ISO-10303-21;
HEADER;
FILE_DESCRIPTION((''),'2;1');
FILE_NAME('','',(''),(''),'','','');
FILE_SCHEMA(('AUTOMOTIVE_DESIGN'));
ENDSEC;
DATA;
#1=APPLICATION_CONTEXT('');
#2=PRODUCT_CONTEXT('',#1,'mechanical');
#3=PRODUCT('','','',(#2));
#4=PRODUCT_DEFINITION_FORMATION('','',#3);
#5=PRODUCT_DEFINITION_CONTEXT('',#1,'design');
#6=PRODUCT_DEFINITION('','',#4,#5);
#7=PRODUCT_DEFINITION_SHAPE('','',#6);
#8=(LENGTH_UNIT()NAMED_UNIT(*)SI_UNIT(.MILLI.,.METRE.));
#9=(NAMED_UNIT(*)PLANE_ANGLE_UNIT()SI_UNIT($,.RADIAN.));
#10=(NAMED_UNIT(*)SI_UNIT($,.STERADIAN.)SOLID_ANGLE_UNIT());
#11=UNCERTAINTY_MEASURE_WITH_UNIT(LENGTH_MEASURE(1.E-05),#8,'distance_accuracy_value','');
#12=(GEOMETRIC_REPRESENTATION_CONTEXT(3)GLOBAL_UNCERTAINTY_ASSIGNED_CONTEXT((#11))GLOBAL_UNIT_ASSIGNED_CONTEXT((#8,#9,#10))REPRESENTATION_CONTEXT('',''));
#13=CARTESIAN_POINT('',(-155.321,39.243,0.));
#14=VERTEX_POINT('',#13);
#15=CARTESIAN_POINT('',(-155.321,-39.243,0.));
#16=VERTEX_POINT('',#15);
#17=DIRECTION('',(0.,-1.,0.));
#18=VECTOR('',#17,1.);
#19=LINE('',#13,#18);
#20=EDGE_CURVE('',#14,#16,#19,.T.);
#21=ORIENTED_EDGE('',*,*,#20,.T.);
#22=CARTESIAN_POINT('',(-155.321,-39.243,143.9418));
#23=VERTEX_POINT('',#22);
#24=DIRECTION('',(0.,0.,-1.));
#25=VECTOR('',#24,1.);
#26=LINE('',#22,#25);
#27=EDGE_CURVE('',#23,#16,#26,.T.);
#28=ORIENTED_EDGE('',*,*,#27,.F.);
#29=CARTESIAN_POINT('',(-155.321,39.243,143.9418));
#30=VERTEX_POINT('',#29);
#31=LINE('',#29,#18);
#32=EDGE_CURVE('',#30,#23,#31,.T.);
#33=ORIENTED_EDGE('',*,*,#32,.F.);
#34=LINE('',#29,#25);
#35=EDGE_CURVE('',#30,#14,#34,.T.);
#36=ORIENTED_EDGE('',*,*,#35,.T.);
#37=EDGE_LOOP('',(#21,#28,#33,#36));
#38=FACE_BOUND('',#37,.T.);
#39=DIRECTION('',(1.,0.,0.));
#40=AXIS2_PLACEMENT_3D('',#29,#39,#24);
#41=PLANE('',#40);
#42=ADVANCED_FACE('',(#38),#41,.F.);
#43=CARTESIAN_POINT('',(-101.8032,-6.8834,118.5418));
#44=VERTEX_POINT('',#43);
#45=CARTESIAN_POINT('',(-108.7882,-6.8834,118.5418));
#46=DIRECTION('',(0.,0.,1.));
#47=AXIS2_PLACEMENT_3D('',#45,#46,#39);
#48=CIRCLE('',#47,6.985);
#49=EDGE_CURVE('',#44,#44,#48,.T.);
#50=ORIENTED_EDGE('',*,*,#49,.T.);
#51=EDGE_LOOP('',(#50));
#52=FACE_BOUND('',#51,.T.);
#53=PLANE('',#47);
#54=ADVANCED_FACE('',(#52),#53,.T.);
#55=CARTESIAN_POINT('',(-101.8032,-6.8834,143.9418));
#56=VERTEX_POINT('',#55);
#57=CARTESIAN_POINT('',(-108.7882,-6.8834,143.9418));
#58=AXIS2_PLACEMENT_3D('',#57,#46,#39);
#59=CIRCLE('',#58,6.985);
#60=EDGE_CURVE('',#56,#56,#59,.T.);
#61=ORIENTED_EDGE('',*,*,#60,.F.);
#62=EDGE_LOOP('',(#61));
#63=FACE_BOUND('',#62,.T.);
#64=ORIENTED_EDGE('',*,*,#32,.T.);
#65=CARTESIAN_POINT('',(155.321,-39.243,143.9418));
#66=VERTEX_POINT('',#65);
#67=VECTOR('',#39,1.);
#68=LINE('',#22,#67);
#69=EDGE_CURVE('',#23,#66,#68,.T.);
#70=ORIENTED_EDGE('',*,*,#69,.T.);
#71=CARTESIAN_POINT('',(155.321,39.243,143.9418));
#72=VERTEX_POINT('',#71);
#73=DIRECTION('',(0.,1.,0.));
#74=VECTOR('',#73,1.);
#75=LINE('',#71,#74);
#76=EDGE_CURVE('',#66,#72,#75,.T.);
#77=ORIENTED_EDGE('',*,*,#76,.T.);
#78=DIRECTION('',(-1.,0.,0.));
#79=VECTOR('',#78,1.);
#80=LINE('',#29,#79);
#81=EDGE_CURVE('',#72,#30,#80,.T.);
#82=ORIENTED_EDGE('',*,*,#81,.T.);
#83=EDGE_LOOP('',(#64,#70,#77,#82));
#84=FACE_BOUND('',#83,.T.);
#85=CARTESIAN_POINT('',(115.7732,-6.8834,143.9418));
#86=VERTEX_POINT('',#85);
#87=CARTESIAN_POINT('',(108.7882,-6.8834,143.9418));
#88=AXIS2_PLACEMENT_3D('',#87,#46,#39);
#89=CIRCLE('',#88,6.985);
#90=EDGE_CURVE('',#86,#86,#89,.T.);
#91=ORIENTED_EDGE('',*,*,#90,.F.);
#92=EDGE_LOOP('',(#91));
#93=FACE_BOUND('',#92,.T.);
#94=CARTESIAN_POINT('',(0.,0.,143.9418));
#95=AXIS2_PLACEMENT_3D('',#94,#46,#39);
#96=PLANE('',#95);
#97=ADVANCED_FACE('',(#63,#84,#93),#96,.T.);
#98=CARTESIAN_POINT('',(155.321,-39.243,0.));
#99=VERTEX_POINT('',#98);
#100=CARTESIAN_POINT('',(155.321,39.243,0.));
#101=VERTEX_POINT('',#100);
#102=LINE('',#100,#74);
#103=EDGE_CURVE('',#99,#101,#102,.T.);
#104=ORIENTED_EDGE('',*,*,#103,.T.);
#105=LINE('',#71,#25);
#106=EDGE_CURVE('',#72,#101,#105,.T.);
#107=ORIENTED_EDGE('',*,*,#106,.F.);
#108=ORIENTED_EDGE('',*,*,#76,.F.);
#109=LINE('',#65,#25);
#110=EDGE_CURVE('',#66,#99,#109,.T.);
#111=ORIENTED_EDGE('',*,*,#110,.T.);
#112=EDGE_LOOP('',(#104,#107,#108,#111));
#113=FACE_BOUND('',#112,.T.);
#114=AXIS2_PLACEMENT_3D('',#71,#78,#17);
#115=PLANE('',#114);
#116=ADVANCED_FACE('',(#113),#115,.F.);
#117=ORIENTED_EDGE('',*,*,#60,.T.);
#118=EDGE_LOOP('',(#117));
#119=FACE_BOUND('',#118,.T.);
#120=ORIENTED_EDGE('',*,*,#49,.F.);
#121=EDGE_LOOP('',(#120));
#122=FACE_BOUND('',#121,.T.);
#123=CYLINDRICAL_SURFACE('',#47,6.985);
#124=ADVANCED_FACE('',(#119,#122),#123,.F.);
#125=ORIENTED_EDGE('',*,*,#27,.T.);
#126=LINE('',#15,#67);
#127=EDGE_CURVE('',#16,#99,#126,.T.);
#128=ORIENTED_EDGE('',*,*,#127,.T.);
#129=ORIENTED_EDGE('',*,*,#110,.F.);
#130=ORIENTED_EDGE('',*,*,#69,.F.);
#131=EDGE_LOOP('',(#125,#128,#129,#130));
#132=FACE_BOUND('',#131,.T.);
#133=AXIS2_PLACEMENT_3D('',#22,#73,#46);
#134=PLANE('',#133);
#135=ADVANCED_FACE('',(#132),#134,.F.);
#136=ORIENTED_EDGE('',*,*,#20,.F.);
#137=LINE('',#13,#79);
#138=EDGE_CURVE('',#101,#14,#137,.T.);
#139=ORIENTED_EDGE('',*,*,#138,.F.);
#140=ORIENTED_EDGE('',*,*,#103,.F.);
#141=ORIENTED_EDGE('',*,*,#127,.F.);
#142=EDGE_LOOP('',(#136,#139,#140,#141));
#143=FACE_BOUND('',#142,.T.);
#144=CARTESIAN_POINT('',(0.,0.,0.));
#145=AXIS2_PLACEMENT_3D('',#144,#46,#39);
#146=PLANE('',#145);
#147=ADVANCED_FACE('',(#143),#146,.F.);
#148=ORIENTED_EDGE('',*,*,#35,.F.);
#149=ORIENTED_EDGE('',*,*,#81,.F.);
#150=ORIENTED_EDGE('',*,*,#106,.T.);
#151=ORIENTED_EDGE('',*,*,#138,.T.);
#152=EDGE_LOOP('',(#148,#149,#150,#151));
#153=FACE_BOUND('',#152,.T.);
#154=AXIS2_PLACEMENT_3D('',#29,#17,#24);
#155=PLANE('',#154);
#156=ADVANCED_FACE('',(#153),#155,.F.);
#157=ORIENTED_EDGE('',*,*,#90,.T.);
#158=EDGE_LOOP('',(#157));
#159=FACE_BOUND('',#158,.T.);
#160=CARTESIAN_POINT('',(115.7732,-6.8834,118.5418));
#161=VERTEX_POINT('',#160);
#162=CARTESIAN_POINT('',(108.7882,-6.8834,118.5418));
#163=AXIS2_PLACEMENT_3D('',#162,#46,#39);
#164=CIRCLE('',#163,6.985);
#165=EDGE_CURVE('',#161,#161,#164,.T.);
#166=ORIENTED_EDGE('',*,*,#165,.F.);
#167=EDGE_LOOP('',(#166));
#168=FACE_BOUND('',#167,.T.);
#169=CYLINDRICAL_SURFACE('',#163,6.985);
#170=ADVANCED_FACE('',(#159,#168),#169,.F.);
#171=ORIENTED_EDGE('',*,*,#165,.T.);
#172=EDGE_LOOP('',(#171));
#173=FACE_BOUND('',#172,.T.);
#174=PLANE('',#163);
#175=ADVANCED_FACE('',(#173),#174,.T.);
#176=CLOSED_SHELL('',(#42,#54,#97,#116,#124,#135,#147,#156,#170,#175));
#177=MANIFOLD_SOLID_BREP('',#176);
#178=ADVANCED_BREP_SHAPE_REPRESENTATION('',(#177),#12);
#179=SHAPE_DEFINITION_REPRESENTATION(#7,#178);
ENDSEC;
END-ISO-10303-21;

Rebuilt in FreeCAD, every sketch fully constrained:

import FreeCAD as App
import Part
import Sketcher
from FreeCAD import Vector
Q = App.Units.Quantity


def add_polygon(sketch, points):
    """Adds a closed chain of lines whose ends are joined by coincident constraints."""
    first, n = sketch.GeometryCount, len(points)
    for a, b in zip(points, points[1:] + points[:1]):
        sketch.addGeometry(Part.LineSegment(App.Vector(*a, 0), App.Vector(*b, 0)), False)
    for i in range(n):
        sketch.addConstraint(Sketcher.Constraint("Coincident", first + i, 2, first + (i + 1) % n, 1))

doc = App.newDocument("Part")
body = doc.addObject("PartDesign::Body", "Body")

# Sketch on XY plane
sketch1 = body.newObject("Sketcher::SketchObject", "Sketch")
sketch1.AttachmentSupport = (doc.getObject("XY_Plane"), [""])
sketch1.MapMode = "FlatFace"
add_polygon(sketch1, [(-155, 39), (-155, -39), (155, -39), (155, 39)])  # lines 0-3
sketch1.addConstraint([
    Sketcher.Constraint("Vertical", 0),
    Sketcher.Constraint("Horizontal", 1),
    Sketcher.Constraint("Vertical", 2),
    Sketcher.Constraint("Horizontal", 3),
    Sketcher.Constraint("Symmetric", 0, 2, 2, 2, -1, 1),
    Sketcher.Constraint("DistanceX", 1, 1, 1, 2, Q("12.23 in")),
    Sketcher.Constraint("DistanceY", 0, 2, 0, 1, Q("3.09 in")),
])
pad1 = body.newObject("PartDesign::Pad", "Pad")
pad1.Profile = sketch1
pad1.Length = Q("5.667 in")

# Sketch on XY plane
sketch2 = body.newObject("Sketcher::SketchObject", "Sketch001")
sketch2.AttachmentSupport = (doc.getObject("XY_Plane"), [""])
sketch2.MapMode = "FlatFace"
sketch2.AttachmentOffset = App.Placement(Vector(0, 0, 5.667 * 25.4), App.Rotation())
sketch2.addGeometry([
    Part.Circle(Vector(-109, -7, 0), Vector(0, 0, 1), 7),
    Part.Circle(Vector(109, -7, 0), Vector(0, 0, 1), 7),
], False)
sketch2.addConstraint([
    Sketcher.Constraint("Equal", 0, 1),
    Sketcher.Constraint("Symmetric", 0, 3, 1, 3, -2),
    Sketcher.Constraint("Diameter", 0, Q("0.55 in")),
    Sketcher.Constraint("DistanceX", 0, 3, -1, 1, Q("4.283 in")),
    Sketcher.Constraint("DistanceY", 0, 3, -1, 1, Q("0.271 in")),
])
pocket1 = body.newObject("PartDesign::Pocket", "Pocket")
pocket1.Profile = sketch2
pocket1.Length = Q("1 in")

doc.recompute()
